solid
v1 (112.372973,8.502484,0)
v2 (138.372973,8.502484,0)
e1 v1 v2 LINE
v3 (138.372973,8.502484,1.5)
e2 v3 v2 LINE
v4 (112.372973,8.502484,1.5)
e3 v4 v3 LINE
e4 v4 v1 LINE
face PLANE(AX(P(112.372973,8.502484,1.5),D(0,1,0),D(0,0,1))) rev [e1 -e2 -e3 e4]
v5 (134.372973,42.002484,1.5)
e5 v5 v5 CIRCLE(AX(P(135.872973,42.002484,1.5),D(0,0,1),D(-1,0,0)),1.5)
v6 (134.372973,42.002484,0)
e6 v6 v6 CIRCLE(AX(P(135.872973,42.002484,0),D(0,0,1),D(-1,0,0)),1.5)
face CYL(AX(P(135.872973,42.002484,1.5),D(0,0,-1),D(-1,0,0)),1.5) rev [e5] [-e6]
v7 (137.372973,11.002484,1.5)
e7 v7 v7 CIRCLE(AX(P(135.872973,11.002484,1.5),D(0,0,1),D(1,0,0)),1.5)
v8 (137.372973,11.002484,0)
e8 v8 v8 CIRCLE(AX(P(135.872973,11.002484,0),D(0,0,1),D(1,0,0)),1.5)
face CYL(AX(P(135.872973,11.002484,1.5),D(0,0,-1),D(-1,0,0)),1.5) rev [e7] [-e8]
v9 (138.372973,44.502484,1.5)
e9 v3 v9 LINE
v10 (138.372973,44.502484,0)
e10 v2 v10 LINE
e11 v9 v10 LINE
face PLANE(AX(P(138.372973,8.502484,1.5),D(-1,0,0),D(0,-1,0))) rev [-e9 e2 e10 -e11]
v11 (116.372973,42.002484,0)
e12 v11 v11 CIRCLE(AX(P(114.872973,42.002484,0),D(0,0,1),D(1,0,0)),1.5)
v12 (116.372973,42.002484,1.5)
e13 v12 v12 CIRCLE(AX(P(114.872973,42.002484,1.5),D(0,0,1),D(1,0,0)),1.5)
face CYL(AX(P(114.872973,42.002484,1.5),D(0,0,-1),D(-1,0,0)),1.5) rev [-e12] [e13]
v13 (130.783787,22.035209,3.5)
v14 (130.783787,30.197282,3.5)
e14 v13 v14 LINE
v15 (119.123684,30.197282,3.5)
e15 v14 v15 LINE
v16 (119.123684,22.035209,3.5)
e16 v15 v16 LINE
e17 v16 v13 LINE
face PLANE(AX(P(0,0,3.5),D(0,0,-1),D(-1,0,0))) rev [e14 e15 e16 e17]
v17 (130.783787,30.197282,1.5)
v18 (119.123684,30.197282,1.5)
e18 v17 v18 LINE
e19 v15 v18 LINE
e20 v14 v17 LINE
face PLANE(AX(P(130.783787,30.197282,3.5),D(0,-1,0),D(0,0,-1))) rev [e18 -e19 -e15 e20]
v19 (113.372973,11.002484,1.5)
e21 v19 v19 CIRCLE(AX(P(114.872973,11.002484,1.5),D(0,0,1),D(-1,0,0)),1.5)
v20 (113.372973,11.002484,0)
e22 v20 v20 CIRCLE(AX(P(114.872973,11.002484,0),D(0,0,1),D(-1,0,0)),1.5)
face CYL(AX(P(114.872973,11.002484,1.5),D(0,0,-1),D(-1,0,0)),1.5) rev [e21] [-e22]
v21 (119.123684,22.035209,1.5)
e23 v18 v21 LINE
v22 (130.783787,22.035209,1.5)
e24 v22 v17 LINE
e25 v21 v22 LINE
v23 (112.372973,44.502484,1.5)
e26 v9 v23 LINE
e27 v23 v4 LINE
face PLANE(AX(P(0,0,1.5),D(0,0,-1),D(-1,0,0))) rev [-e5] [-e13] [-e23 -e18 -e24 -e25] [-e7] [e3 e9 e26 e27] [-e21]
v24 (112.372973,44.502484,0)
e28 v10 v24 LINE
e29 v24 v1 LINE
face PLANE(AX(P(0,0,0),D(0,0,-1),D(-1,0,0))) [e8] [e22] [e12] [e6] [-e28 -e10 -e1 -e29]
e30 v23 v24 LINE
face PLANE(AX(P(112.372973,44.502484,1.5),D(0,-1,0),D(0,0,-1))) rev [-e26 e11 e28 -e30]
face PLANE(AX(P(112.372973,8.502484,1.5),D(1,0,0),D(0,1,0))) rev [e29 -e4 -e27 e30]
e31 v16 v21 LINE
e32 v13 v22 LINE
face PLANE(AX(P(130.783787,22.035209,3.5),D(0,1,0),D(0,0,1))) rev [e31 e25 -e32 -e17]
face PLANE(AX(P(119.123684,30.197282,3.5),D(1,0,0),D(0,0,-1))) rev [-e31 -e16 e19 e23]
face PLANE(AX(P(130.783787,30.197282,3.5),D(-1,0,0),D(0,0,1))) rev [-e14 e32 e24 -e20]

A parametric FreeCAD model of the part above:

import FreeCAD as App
import Part
import Sketcher

V = App.Vector
Q = App.Units.Quantity


def add_polygon(sketch, points):
    """Adds a closed chain of lines whose ends are joined by coincident constraints."""
    first, n = sketch.GeometryCount, len(points)
    for a, b in zip(points, points[1:] + points[:1]):
        sketch.addGeometry(Part.LineSegment(App.Vector(*a, 0), App.Vector(*b, 0)), False)
    for i in range(n):
        sketch.addConstraint(Sketcher.Constraint("Coincident", first + i, 2, first + (i + 1) % n, 1))

doc = App.newDocument("Part")
body = doc.addObject("PartDesign::Body", "Body")

# Sketch on XY plane
sketch1 = doc.addObject("Sketcher::SketchObject", "Sketch")
body.addObject(sketch1)
sketch1.AttachmentSupport = (doc.XY_Plane, [""])
sketch1.MapMode = "FlatFace"
add_polygon(sketch1, [(112.372973, 44.502484), (112.372973, 8.502484), (138.372973, 8.502484), (138.372973, 44.502484)])  # lines 0-3
sketch1.addGeometry(Part.Circle(V(114.872973, 11.002484, 0), V(0, 0, 1), 1.5), False)  # 4
sketch1.addGeometry(Part.Circle(V(135.872973, 11.002484, 0), V(0, 0, 1), 1.5), False)  # 5
sketch1.addGeometry(Part.Circle(V(114.872973, 42.002484, 0), V(0, 0, 1), 1.5), False)  # 6
sketch1.addGeometry(Part.Circle(V(135.872973, 42.002484, 0), V(0, 0, 1), 1.5), False)  # 7
sketch1.addConstraint(Sketcher.Constraint("Vertical", 0))
sketch1.addConstraint(Sketcher.Constraint("Horizontal", 1))
sketch1.addConstraint(Sketcher.Constraint("Vertical", 2))
sketch1.addConstraint(Sketcher.Constraint("Horizontal", 3))
sketch1.addConstraint(Sketcher.Constraint("Equal", 4, 5))
sketch1.addConstraint(Sketcher.Constraint("Equal", 5, 6))
sketch1.addConstraint(Sketcher.Constraint("Equal", 6, 7))
sketch1.addConstraint(Sketcher.Constraint("Horizontal", 4, 3, 5, 3))
sketch1.addConstraint(Sketcher.Constraint("Horizontal", 6, 3, 7, 3))
sketch1.addConstraint(Sketcher.Constraint("Vertical", 4, 3, 6, 3))
sketch1.addConstraint(Sketcher.Constraint("Vertical", 5, 3, 7, 3))
sketch1.addConstraint(Sketcher.Constraint("Diameter", 4, Q("3 mm")))
sketch1.addConstraint(Sketcher.Constraint("DistanceX", 1, 1, 1, 2, Q("26 mm")))
sketch1.addConstraint(Sketcher.Constraint("DistanceY", 0, 2, 0, 1, Q("36 mm")))
sketch1.addConstraint(Sketcher.Constraint("DistanceX", 4, 3, 5, 3, Q("21 mm")))
sketch1.addConstraint(Sketcher.Constraint("DistanceY", 4, 3, 6, 3, Q("31 mm")))
sketch1.addConstraint(Sketcher.Constraint("DistanceX", 0, 2, 4, 3, Q("2.5 mm")))
sketch1.addConstraint(Sketcher.Constraint("DistanceY", 0, 2, 4, 3, Q("2.5 mm")))
sketch1.addConstraint(Sketcher.Constraint("DistanceX", -1, 1, 4, 3, Q("114.872973 mm")))
sketch1.addConstraint(Sketcher.Constraint("DistanceY", -1, 1, 4, 3, Q("11.002484 mm")))
pad1 = doc.addObject("PartDesign::Pad", "Pad")
body.addObject(pad1)
pad1.Profile = sketch1
pad1.Length = 1.5

# Sketch on XY plane
sketch2 = doc.addObject("Sketcher::SketchObject", "Sketch001")
body.addObject(sketch2)
sketch2.AttachmentSupport = (doc.XY_Plane, [""])
sketch2.MapMode = "FlatFace"
sketch2.AttachmentOffset = App.Placement(V(0, 0, 1.5), App.Rotation())
add_polygon(sketch2, [(119.123684, 30.197282), (119.123684, 22.035209), (130.783787, 22.035209), (130.783787, 30.197282)])  # lines 0-3
sketch2.addConstraint(Sketcher.Constraint("Vertical", 0))
sketch2.addConstraint(Sketcher.Constraint("Horizontal", 1))
sketch2.addConstraint(Sketcher.Constraint("Vertical", 2))
sketch2.addConstraint(Sketcher.Constraint("Horizontal", 3))
sketch2.addConstraint(Sketcher.Constraint("DistanceX", 1, 1, 1, 2, Q("11.660103 mm")))
sketch2.addConstraint(Sketcher.Constraint("DistanceY", 0, 2, 0, 1, Q("8.162072 mm")))
sketch2.addConstraint(Sketcher.Constraint("DistanceY", -1, 1, 0, 2, Q("22.035209 mm")))
sketch2.addConstraint(Sketcher.Constraint("DistanceX", -1, 1, 0, 2, Q("119.123684 mm")))
pad2 = doc.addObject("PartDesign::Pad", "Pad001")
body.addObject(pad2)
pad2.Profile = sketch2
pad2.Length = 2

doc.recompute()
